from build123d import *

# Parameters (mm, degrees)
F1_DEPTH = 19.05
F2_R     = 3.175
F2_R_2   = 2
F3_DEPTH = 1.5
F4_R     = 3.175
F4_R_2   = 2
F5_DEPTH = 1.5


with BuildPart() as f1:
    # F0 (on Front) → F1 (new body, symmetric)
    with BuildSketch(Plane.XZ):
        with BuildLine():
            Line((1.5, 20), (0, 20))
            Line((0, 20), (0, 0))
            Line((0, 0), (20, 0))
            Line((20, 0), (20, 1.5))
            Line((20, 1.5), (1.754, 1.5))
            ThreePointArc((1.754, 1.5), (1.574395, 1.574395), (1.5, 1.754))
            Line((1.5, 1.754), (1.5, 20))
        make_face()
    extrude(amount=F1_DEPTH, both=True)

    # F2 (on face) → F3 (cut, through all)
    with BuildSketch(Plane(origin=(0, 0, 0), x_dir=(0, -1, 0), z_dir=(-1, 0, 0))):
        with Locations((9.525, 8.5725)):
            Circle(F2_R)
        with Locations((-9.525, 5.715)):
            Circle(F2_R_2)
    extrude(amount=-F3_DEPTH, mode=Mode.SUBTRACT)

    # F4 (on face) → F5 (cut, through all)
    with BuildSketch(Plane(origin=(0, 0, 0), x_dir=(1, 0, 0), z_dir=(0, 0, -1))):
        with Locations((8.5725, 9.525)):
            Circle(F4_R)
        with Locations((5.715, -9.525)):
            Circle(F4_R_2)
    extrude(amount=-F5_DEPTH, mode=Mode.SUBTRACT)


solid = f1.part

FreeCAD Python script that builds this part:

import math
import FreeCAD as App
import Part
import Sketcher

V = App.Vector
Q = App.Units.Quantity

doc = App.newDocument("Part")
params = doc.addObject("Spreadsheet::Sheet", "Params")
for row, (alias, value) in enumerate([
    ("sketch1_width", "20 mm"),
    ("sketch1_width2", "1.5 mm"),
    ("pad1_length", "38.1 mm"),
    ("sketch2_diameter", "4 mm"),
    ("sketch2_diameter2", "6.35 mm"),
    ("sketch3_diameter", "4 mm"),
    ("sketch3_diameter2", "6.35 mm"),
], start=1):
    params.set(f"A{row}", alias)
    params.set(f"B{row}", "=" + value)
    params.setAlias(f"B{row}", alias)

body = doc.addObject("PartDesign::Body", "Body")

sketch1 = body.newObject("Sketcher::SketchObject", "Sketch")
sketch1.AttachmentSupport = (doc.getObject("XZ_Plane"), [""])
sketch1.MapMode = "FlatFace"
sketch1.addGeometry([
    Part.LineSegment(V(1.5, 20, 0), V(0, 20, 0)),
    Part.LineSegment(V(0, 20, 0), V(0, 0, 0)),
    Part.LineSegment(V(0, 0, 0), V(20, 0, 0)),
    Part.LineSegment(V(20, 0, 0), V(20, 1.5, 0)),
    Part.LineSegment(V(20, 1.5, 0), V(1.754, 1.5, 0)),
    Part.ArcOfCircle(Part.Circle(V(1.754, 1.754, 0), V(0, 0, 1), 0.254), math.radians(-179.999906), math.radians(-90.000094)),
    Part.LineSegment(V(1.5, 1.754, 0), V(1.5, 20, 0)),
], False)
sketch1.addConstraint([
    Sketcher.Constraint("Coincident", 0, 2, 1, 1),
    Sketcher.Constraint("Coincident", 1, 2, 2, 1),
    Sketcher.Constraint("Coincident", 2, 2, 3, 1),
    Sketcher.Constraint("Coincident", 3, 2, 4, 1),
    Sketcher.Constraint("Tangent", 4, 2, 5, 2),
    Sketcher.Constraint("Tangent", 5, 1, 6, 1),
    Sketcher.Constraint("Coincident", 6, 2, 0, 1),
    Sketcher.Constraint("Horizontal", 0),
    Sketcher.Constraint("Vertical", 1),
    Sketcher.Constraint("Horizontal", 2),
    Sketcher.Constraint("Vertical", 3),
    Sketcher.Constraint("Horizontal", 4),
    Sketcher.Constraint("Vertical", 6),
    Sketcher.Constraint("Coincident", 1, 2, -1, 1),
    Sketcher.Constraint("Equal", 2, 1),
    Sketcher.Constraint("Equal", 0, 3),
    Sketcher.Constraint("DistanceX", 2, 1, 2, 2, Q("20 mm")),
    Sketcher.Constraint("DistanceX", 0, 2, 0, 1, Q("1.5 mm")),
    Sketcher.Constraint("Radius", 5, Q("0.254 mm")),
])
sketch1.setExpression("Constraints[16]", "Params.sketch1_width")
sketch1.setExpression("Constraints[17]", "Params.sketch1_width2")
pad1 = body.newObject("PartDesign::Pad", "Pad")
pad1.Profile = sketch1
pad1.setExpression("Length", "Params.pad1_length")
pad1.Midplane = True

sketch2 = body.newObject("Sketcher::SketchObject", "Sketch001")
sketch2.AttachmentSupport = (doc.getObject("YZ_Plane"), [""])
sketch2.MapMode = "FlatFace"
sketch2.addGeometry([
    Part.Circle(V(-9.525, 8.5725, 0), V(0, 0, 1), 3.175),
    Part.Circle(V(9.525, 5.715, 0), V(0, 0, 1), 2),
], False)
sketch2.addConstraint([
    Sketcher.Constraint("Diameter", 1, Q("4 mm")),
    Sketcher.Constraint("Diameter", 0, Q("6.35 mm")),
    Sketcher.Constraint("DistanceX", 0, 3, 1, 3, Q("19.05 mm")),
    Sketcher.Constraint("DistanceX", 0, 3, -1, 1, Q("9.525 mm")),
    Sketcher.Constraint("DistanceY", -1, 1, 1, 3, Q("5.715 mm")),
    Sketcher.Constraint("DistanceY", -1, 1, 0, 3, Q("8.5725 mm")),
])
sketch2.setExpression("Constraints[0]", "Params.sketch2_diameter")
sketch2.setExpression("Constraints[1]", "Params.sketch2_diameter2")
pocket1 = body.newObject("PartDesign::Pocket", "Pocket")
pocket1.Profile = sketch2
pocket1.Type = "ThroughAll"
pocket1.Reversed = True

sketch3 = body.newObject("Sketcher::SketchObject", "Sketch002")
sketch3.AttachmentSupport = (doc.getObject("XY_Plane"), [""])
sketch3.MapMode = "FlatFace"
sketch3.addGeometry([
    Part.Circle(V(8.5725, -9.525, 0), V(0, 0, 1), 3.175),
    Part.Circle(V(5.715, 9.525, 0), V(0, 0, 1), 2),
], False)
sketch3.addConstraint([
    Sketcher.Constraint("Diameter", 1, Q("4 mm")),
    Sketcher.Constraint("Diameter", 0, Q("6.35 mm")),
    Sketcher.Constraint("DistanceY", 0, 3, 1, 3, Q("19.05 mm")),
    Sketcher.Constraint("DistanceY", 0, 3, -1, 1, Q("9.525 mm")),
    Sketcher.Constraint("DistanceX", -1, 1, 1, 3, Q("5.715 mm")),
    Sketcher.Constraint("DistanceX", -1, 1, 0, 3, Q("8.5725 mm")),
])
sketch3.setExpression("Constraints[0]", "Params.sketch3_diameter")
sketch3.setExpression("Constraints[1]", "Params.sketch3_diameter2")
pocket2 = body.newObject("PartDesign::Pocket", "Pocket001")
pocket2.Profile = sketch3
pocket2.Type = "ThroughAll"
pocket2.Reversed = True

doc.recompute()
